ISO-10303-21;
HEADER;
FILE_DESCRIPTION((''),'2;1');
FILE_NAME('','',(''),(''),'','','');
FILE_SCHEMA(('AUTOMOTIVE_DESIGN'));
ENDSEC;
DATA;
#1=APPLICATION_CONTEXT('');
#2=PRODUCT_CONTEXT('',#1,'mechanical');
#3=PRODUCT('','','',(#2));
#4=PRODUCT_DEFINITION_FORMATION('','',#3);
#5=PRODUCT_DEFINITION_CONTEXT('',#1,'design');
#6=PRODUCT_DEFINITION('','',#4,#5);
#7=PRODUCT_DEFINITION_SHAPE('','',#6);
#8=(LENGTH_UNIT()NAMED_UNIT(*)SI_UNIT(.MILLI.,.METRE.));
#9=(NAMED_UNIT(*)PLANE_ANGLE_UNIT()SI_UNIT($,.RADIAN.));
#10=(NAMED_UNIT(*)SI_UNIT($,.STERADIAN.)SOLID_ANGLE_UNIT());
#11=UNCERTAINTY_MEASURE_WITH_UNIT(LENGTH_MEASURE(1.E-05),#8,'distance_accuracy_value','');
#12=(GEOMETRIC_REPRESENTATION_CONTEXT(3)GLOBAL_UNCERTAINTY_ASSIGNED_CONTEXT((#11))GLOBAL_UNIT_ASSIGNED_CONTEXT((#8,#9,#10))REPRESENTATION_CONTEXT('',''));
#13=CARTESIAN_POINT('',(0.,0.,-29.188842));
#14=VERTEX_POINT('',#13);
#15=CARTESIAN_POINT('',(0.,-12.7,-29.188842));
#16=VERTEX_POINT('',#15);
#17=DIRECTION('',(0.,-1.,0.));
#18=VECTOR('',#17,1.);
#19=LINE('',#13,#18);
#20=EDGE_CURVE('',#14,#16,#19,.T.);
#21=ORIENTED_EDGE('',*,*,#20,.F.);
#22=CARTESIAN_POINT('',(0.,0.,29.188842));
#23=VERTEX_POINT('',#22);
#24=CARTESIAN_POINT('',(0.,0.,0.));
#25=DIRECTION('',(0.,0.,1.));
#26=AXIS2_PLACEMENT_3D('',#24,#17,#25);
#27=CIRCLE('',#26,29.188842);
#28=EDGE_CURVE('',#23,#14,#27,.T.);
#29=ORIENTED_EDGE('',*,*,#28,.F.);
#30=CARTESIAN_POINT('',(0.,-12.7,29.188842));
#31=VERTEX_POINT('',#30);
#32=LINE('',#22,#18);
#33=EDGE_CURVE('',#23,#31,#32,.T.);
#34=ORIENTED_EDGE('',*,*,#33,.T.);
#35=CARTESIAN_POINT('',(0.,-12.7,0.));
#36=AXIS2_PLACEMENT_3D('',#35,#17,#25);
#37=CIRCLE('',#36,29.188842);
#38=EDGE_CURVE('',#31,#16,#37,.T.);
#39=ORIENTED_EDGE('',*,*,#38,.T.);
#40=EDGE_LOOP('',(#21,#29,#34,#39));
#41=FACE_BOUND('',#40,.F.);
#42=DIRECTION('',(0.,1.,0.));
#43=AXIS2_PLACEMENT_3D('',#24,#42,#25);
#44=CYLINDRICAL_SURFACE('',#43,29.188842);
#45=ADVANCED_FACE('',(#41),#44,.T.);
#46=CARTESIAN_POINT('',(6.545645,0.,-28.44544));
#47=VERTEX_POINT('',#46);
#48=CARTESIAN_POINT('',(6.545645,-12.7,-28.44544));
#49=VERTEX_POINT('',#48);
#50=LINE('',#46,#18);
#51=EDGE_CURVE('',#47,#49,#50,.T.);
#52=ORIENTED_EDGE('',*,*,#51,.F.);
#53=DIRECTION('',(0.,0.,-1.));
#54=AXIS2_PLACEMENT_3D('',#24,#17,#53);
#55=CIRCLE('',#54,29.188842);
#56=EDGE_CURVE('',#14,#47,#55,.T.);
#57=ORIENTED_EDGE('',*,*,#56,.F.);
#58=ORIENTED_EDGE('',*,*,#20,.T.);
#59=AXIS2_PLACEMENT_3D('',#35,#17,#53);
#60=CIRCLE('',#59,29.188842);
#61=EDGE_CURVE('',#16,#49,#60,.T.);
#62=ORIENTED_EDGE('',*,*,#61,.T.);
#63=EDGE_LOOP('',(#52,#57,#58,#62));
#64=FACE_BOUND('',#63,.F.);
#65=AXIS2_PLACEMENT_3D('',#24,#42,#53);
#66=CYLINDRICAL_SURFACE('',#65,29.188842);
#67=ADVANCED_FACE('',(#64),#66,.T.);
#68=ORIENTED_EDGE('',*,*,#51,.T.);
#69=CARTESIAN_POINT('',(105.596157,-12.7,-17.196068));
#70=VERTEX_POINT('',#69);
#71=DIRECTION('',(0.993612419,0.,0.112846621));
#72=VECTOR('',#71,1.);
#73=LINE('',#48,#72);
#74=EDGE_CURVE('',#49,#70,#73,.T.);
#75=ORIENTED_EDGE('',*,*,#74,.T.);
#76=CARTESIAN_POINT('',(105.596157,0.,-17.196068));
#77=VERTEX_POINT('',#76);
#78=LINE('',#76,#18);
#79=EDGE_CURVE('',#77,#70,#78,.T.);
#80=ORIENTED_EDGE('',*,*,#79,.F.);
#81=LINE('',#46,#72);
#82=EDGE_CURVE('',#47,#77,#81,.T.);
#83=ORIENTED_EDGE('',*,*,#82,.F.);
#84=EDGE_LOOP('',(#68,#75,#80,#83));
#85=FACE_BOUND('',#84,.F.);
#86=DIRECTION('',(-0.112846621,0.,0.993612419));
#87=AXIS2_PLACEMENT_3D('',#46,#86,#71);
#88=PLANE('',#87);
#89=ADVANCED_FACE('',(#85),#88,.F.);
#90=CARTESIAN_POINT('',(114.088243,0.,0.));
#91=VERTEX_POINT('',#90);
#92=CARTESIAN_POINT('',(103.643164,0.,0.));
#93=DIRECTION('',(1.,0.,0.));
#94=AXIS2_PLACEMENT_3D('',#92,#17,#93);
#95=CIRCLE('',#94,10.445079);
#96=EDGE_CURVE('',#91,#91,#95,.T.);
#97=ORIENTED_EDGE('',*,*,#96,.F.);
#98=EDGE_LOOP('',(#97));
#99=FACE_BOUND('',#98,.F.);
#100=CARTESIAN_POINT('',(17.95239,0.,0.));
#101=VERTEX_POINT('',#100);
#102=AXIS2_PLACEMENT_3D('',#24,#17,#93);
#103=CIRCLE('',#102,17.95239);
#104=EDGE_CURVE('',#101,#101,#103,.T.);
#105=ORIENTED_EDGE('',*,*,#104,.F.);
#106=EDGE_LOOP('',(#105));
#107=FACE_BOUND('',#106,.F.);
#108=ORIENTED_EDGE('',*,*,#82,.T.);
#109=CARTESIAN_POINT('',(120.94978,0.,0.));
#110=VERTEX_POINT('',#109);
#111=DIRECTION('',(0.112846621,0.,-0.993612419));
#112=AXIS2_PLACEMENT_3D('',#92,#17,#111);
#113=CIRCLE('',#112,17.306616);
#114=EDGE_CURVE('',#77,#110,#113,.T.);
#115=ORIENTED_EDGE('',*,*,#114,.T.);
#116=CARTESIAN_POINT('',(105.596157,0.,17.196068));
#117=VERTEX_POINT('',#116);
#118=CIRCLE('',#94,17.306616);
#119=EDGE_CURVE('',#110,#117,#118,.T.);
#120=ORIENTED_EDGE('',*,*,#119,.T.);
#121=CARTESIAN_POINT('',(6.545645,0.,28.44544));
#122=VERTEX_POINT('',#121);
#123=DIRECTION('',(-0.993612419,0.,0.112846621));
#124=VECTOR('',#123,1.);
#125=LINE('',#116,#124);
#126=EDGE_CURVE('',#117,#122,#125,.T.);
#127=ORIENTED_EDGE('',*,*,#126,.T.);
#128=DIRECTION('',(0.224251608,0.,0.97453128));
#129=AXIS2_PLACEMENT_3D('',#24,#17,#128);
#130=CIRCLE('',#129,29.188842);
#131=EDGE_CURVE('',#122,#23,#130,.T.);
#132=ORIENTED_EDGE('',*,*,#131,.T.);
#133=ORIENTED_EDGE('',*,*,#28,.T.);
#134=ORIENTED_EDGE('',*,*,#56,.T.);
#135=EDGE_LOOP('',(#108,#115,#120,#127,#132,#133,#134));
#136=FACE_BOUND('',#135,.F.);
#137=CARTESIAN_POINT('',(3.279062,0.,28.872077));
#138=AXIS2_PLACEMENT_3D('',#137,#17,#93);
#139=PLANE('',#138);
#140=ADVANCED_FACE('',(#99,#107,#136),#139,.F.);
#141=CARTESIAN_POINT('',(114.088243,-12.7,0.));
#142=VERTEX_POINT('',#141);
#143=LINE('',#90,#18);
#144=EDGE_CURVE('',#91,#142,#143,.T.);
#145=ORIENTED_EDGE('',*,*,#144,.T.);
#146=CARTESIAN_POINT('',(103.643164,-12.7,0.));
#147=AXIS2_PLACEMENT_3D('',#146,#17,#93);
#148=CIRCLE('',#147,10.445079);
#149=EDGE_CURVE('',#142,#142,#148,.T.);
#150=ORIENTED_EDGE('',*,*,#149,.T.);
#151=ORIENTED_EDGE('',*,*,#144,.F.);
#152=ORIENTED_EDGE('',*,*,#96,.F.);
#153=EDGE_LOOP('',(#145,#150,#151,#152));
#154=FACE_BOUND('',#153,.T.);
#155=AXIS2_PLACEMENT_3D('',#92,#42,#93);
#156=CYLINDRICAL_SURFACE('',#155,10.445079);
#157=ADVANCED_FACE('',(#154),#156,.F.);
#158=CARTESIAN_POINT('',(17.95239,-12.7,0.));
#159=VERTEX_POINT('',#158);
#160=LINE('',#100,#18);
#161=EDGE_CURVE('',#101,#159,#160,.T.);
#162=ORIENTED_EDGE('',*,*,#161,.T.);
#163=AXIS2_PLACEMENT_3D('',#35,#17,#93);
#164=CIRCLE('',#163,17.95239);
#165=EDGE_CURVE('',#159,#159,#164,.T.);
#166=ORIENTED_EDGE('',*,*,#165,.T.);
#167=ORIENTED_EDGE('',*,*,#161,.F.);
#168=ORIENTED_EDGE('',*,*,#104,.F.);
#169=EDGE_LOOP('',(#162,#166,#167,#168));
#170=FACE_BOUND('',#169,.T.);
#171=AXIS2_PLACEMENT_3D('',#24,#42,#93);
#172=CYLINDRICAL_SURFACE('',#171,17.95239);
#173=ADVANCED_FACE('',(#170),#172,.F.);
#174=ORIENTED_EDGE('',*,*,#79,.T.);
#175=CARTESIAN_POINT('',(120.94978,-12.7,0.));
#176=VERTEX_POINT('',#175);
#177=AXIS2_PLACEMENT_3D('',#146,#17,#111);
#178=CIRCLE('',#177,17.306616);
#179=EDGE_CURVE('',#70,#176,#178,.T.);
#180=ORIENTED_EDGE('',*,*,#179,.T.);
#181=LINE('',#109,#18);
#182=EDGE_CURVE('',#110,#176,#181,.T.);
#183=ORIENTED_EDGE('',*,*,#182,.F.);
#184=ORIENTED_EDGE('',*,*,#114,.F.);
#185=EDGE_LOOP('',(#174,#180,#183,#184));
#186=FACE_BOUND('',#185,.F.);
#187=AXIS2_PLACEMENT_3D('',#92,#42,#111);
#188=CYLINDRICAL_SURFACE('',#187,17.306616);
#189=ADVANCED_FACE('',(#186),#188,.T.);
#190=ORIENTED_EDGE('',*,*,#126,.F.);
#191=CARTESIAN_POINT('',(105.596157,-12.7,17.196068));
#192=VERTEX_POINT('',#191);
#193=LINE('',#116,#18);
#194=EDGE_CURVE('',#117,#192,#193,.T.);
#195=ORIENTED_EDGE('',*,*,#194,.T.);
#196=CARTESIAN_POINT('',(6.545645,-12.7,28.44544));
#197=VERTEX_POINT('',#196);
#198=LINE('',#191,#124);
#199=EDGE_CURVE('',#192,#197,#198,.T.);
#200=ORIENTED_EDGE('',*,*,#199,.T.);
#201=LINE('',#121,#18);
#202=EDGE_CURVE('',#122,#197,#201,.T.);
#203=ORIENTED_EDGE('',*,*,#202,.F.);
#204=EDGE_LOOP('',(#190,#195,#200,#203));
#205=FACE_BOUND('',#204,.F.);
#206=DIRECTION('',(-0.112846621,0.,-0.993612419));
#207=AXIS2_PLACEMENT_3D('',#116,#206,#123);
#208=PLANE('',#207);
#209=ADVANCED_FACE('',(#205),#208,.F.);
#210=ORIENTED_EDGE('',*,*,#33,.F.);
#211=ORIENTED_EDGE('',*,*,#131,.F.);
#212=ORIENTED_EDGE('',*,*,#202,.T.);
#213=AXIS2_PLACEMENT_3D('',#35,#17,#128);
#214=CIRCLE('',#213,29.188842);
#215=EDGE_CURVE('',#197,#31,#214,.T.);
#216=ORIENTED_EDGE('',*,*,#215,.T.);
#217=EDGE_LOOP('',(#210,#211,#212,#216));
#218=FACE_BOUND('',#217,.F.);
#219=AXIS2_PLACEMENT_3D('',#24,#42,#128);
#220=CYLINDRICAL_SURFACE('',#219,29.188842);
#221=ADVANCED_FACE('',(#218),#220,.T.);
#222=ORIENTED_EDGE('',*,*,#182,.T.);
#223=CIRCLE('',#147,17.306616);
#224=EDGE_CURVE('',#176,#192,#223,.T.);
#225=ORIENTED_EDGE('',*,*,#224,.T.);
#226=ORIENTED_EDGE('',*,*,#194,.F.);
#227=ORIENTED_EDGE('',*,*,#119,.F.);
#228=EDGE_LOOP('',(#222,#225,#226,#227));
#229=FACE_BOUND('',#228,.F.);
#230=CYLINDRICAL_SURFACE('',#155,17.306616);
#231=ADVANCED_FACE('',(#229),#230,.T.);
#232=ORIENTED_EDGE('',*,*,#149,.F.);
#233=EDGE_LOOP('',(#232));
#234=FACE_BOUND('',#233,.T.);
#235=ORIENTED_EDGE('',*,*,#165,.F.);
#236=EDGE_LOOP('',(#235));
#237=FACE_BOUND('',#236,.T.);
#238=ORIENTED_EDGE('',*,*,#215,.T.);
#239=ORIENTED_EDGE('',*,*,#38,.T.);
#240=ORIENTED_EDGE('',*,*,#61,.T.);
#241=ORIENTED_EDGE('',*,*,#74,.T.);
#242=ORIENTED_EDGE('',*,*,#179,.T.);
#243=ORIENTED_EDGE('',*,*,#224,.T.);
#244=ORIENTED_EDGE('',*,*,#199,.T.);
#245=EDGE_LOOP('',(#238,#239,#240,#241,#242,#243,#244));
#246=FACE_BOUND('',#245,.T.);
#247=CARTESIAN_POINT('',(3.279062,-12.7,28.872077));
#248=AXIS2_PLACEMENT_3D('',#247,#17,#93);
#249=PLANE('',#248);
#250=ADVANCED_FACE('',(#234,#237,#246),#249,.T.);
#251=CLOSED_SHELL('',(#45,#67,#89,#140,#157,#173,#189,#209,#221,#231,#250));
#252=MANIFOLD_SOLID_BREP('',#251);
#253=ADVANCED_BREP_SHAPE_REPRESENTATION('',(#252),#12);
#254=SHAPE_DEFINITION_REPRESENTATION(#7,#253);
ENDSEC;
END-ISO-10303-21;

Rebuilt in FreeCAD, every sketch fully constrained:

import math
import FreeCAD as App
import Part
import Sketcher
from FreeCAD import Vector
Q = App.Units.Quantity

doc = App.newDocument("Part")
params = doc.addObject("Spreadsheet::Sheet", "Params")
for row, (alias, value) in enumerate([
    ("pad1_length", "0.5 in"),
], start=1):
    params.set(f"A{row}", alias)
    params.set(f"B{row}", "=" + value)
    params.setAlias(f"B{row}", alias)

body = doc.addObject("PartDesign::Body", "Body")

# Sketch on XZ plane
sketch1 = body.newObject("Sketcher::SketchObject", "Sketch")
sketch1.AttachmentSupport = (doc.getObject("XZ_Plane"), [""])
sketch1.MapMode = "FlatFace"
sketch1.addGeometry([
    Part.ArcOfCircle(Part.Circle(Vector(0, 0, 0), Vector(0, 0, 1), 29), math.radians(77.04), math.radians(90)),  # 0
    Part.ArcOfCircle(Part.Circle(Vector(0, 0, 0), Vector(0, 0, 1), 29), math.radians(90), math.radians(270)),  # 1
    Part.ArcOfCircle(Part.Circle(Vector(0, 0, 0), Vector(0, 0, 1), 29), math.radians(-90), math.radians(-77.04)),  # 2
    Part.LineSegment(Vector(7, -28, 0), Vector(106, -17, 0)),  # 3
    Part.ArcOfCircle(Part.Circle(Vector(104, 0, 0), Vector(0, 0, 1), 17), math.radians(-84), math.radians(0)),  # 4
    Part.ArcOfCircle(Part.Circle(Vector(104, 0, 0), Vector(0, 0, 1), 17), math.radians(0), math.radians(84)),  # 5
    Part.LineSegment(Vector(106, 17, 0), Vector(7, 28, 0)),  # 6
    Part.Circle(Vector(104, 0, 0), Vector(0, 0, 1), 10),  # 7
    Part.Circle(Vector(0, 0, 0), Vector(0, 0, 1), 18),  # 8
], False)
sketch1.addConstraint([
    Sketcher.Constraint("Tangent", 0, 2, 1, 1),
    Sketcher.Constraint("Tangent", 1, 2, 2, 1),
    Sketcher.Constraint("Coincident", 2, 2, 3, 1),
    Sketcher.Constraint("Tangent", 3, 2, 4, 1),
    Sketcher.Constraint("Tangent", 4, 2, 5, 1),
    Sketcher.Constraint("Tangent", 5, 2, 6, 1),
    Sketcher.Constraint("Coincident", 6, 2, 0, 1),
    Sketcher.Constraint("Coincident", 0, 3, -1, 1),
    Sketcher.Constraint("Coincident", 8, 3, -1, 1),
    Sketcher.Constraint("Coincident", 7, 3, 4, 3),
    Sketcher.Constraint("Equal", 0, 1),
    Sketcher.Constraint("Equal", 1, 2),
    Sketcher.Constraint("Equal", 4, 5),
    Sketcher.Constraint("Symmetric", 3, 2, 5, 2, -1),
    Sketcher.Constraint("PointOnObject", 0, 2, -2),
    Sketcher.Constraint("PointOnObject", 1, 2, -2),
    Sketcher.Constraint("PointOnObject", 4, 2, -1),
    Sketcher.Constraint("Diameter", 8, Q("35.904779 mm")),
    Sketcher.Constraint("Diameter", 7, Q("20.890158 mm")),
    Sketcher.Constraint("Radius", 0, Q("29.188842 mm")),
    Sketcher.Constraint("Radius", 4, Q("17.306616 mm")),
    Sketcher.Constraint("DistanceY", 2, 2, -1, 1, Q("28.44544 mm")),
    Sketcher.Constraint("DistanceX", -1, 1, 4, 2, Q("120.94978 mm")),
])
pad1 = body.newObject("PartDesign::Pad", "Pad")
pad1.Profile = sketch1
pad1.setExpression("Length", "Params.pad1_length")

doc.recompute()
